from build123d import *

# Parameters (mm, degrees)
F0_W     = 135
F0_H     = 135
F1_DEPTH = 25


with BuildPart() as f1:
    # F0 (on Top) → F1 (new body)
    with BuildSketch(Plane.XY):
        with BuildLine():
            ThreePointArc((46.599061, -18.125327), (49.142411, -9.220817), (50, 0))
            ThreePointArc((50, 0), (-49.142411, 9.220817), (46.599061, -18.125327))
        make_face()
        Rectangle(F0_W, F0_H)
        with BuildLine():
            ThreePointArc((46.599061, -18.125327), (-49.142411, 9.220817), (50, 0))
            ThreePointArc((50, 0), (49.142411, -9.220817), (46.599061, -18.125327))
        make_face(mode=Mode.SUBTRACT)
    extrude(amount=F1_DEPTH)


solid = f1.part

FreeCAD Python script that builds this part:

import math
import FreeCAD as App
import Part
import Sketcher
from FreeCAD import Vector

doc = App.newDocument("Part")
body = doc.addObject("PartDesign::Body", "Body")

sketch1 = body.newObject("Sketcher::SketchObject", "Sketch")
sketch1.AttachmentSupport = (doc.getObject("XY_Plane"), [""])
sketch1.MapMode = "FlatFace"
sketch1.addGeometry(Part.LineSegment(Vector(-67.5, 67.5, 0), Vector(-67.5, -67.5, 0)), False)
sketch1.addGeometry(Part.LineSegment(Vector(-67.5, -67.5, 0), Vector(67.5, -67.5, 0)), False)
sketch1.addGeometry(Part.LineSegment(Vector(67.5, -67.5, 0), Vector(67.5, 67.5, 0)), False)
sketch1.addGeometry(Part.LineSegment(Vector(67.5, 67.5, 0), Vector(-67.5, 67.5, 0)), False)
sketch1.addGeometry(Part.ArcOfCircle(Part.Circle(Vector(0.000025, -0.000004, 0), Vector(0, 0, 1), 49.999975), math.radians(-21.254218), math.radians(0.000004)), False)
sketch1.addGeometry(Part.ArcOfCircle(Part.Circle(Vector(0, 0.000001, 0), Vector(0, 0, 1), 50), math.radians(-0.000001), math.radians(338.745788)), False)
sketch1.addConstraint(Sketcher.Constraint("Coincident", 0, 2, 1, 1))
sketch1.addConstraint(Sketcher.Constraint("Coincident", 1, 2, 2, 1))
sketch1.addConstraint(Sketcher.Constraint("Coincident", 2, 2, 3, 1))
sketch1.addConstraint(Sketcher.Constraint("Coincident", 3, 2, 0, 1))
sketch1.addConstraint(Sketcher.Constraint("Coincident", 4, 1, 5, 2))
sketch1.addConstraint(Sketcher.Constraint("Coincident", 5, 1, 4, 2))
sketch1.addConstraint(Sketcher.Constraint("Vertical", 0))
sketch1.addConstraint(Sketcher.Constraint("Horizontal", 1))
sketch1.addConstraint(Sketcher.Constraint("Vertical", 2))
sketch1.addConstraint(Sketcher.Constraint("Horizontal", 3))
sketch1.addConstraint(Sketcher.Constraint("Coincident", 5, 3, -1, 1))
sketch1.addConstraint(Sketcher.Constraint("PointOnObject", 5, 1, -1))
sketch1.addConstraint(Sketcher.Constraint("Radius", 5, 50.0))
sketch1.addConstraint(Sketcher.Constraint("DistanceX", 1, 1, 1, 2, 135.0))
sketch1.addConstraint(Sketcher.Constraint("DistanceY", 0, 2, 0, 1, 135.0))
sketch1.addConstraint(Sketcher.Constraint("DistanceX", 0, 2, -1, 1, 67.5))
sketch1.addConstraint(Sketcher.Constraint("DistanceY", 0, 2, -1, 1, 67.5))
sketch1.addConstraint(Sketcher.Constraint("Radius", 4, 49.999975))
sketch1.addConstraint(Sketcher.Constraint("DistanceX", -1, 1, 4, 1, 46.599061))
pad1 = body.newObject("PartDesign::Pad", "Pad")
pad1.Profile = sketch1
pad1.Length = 25

doc.recompute()
